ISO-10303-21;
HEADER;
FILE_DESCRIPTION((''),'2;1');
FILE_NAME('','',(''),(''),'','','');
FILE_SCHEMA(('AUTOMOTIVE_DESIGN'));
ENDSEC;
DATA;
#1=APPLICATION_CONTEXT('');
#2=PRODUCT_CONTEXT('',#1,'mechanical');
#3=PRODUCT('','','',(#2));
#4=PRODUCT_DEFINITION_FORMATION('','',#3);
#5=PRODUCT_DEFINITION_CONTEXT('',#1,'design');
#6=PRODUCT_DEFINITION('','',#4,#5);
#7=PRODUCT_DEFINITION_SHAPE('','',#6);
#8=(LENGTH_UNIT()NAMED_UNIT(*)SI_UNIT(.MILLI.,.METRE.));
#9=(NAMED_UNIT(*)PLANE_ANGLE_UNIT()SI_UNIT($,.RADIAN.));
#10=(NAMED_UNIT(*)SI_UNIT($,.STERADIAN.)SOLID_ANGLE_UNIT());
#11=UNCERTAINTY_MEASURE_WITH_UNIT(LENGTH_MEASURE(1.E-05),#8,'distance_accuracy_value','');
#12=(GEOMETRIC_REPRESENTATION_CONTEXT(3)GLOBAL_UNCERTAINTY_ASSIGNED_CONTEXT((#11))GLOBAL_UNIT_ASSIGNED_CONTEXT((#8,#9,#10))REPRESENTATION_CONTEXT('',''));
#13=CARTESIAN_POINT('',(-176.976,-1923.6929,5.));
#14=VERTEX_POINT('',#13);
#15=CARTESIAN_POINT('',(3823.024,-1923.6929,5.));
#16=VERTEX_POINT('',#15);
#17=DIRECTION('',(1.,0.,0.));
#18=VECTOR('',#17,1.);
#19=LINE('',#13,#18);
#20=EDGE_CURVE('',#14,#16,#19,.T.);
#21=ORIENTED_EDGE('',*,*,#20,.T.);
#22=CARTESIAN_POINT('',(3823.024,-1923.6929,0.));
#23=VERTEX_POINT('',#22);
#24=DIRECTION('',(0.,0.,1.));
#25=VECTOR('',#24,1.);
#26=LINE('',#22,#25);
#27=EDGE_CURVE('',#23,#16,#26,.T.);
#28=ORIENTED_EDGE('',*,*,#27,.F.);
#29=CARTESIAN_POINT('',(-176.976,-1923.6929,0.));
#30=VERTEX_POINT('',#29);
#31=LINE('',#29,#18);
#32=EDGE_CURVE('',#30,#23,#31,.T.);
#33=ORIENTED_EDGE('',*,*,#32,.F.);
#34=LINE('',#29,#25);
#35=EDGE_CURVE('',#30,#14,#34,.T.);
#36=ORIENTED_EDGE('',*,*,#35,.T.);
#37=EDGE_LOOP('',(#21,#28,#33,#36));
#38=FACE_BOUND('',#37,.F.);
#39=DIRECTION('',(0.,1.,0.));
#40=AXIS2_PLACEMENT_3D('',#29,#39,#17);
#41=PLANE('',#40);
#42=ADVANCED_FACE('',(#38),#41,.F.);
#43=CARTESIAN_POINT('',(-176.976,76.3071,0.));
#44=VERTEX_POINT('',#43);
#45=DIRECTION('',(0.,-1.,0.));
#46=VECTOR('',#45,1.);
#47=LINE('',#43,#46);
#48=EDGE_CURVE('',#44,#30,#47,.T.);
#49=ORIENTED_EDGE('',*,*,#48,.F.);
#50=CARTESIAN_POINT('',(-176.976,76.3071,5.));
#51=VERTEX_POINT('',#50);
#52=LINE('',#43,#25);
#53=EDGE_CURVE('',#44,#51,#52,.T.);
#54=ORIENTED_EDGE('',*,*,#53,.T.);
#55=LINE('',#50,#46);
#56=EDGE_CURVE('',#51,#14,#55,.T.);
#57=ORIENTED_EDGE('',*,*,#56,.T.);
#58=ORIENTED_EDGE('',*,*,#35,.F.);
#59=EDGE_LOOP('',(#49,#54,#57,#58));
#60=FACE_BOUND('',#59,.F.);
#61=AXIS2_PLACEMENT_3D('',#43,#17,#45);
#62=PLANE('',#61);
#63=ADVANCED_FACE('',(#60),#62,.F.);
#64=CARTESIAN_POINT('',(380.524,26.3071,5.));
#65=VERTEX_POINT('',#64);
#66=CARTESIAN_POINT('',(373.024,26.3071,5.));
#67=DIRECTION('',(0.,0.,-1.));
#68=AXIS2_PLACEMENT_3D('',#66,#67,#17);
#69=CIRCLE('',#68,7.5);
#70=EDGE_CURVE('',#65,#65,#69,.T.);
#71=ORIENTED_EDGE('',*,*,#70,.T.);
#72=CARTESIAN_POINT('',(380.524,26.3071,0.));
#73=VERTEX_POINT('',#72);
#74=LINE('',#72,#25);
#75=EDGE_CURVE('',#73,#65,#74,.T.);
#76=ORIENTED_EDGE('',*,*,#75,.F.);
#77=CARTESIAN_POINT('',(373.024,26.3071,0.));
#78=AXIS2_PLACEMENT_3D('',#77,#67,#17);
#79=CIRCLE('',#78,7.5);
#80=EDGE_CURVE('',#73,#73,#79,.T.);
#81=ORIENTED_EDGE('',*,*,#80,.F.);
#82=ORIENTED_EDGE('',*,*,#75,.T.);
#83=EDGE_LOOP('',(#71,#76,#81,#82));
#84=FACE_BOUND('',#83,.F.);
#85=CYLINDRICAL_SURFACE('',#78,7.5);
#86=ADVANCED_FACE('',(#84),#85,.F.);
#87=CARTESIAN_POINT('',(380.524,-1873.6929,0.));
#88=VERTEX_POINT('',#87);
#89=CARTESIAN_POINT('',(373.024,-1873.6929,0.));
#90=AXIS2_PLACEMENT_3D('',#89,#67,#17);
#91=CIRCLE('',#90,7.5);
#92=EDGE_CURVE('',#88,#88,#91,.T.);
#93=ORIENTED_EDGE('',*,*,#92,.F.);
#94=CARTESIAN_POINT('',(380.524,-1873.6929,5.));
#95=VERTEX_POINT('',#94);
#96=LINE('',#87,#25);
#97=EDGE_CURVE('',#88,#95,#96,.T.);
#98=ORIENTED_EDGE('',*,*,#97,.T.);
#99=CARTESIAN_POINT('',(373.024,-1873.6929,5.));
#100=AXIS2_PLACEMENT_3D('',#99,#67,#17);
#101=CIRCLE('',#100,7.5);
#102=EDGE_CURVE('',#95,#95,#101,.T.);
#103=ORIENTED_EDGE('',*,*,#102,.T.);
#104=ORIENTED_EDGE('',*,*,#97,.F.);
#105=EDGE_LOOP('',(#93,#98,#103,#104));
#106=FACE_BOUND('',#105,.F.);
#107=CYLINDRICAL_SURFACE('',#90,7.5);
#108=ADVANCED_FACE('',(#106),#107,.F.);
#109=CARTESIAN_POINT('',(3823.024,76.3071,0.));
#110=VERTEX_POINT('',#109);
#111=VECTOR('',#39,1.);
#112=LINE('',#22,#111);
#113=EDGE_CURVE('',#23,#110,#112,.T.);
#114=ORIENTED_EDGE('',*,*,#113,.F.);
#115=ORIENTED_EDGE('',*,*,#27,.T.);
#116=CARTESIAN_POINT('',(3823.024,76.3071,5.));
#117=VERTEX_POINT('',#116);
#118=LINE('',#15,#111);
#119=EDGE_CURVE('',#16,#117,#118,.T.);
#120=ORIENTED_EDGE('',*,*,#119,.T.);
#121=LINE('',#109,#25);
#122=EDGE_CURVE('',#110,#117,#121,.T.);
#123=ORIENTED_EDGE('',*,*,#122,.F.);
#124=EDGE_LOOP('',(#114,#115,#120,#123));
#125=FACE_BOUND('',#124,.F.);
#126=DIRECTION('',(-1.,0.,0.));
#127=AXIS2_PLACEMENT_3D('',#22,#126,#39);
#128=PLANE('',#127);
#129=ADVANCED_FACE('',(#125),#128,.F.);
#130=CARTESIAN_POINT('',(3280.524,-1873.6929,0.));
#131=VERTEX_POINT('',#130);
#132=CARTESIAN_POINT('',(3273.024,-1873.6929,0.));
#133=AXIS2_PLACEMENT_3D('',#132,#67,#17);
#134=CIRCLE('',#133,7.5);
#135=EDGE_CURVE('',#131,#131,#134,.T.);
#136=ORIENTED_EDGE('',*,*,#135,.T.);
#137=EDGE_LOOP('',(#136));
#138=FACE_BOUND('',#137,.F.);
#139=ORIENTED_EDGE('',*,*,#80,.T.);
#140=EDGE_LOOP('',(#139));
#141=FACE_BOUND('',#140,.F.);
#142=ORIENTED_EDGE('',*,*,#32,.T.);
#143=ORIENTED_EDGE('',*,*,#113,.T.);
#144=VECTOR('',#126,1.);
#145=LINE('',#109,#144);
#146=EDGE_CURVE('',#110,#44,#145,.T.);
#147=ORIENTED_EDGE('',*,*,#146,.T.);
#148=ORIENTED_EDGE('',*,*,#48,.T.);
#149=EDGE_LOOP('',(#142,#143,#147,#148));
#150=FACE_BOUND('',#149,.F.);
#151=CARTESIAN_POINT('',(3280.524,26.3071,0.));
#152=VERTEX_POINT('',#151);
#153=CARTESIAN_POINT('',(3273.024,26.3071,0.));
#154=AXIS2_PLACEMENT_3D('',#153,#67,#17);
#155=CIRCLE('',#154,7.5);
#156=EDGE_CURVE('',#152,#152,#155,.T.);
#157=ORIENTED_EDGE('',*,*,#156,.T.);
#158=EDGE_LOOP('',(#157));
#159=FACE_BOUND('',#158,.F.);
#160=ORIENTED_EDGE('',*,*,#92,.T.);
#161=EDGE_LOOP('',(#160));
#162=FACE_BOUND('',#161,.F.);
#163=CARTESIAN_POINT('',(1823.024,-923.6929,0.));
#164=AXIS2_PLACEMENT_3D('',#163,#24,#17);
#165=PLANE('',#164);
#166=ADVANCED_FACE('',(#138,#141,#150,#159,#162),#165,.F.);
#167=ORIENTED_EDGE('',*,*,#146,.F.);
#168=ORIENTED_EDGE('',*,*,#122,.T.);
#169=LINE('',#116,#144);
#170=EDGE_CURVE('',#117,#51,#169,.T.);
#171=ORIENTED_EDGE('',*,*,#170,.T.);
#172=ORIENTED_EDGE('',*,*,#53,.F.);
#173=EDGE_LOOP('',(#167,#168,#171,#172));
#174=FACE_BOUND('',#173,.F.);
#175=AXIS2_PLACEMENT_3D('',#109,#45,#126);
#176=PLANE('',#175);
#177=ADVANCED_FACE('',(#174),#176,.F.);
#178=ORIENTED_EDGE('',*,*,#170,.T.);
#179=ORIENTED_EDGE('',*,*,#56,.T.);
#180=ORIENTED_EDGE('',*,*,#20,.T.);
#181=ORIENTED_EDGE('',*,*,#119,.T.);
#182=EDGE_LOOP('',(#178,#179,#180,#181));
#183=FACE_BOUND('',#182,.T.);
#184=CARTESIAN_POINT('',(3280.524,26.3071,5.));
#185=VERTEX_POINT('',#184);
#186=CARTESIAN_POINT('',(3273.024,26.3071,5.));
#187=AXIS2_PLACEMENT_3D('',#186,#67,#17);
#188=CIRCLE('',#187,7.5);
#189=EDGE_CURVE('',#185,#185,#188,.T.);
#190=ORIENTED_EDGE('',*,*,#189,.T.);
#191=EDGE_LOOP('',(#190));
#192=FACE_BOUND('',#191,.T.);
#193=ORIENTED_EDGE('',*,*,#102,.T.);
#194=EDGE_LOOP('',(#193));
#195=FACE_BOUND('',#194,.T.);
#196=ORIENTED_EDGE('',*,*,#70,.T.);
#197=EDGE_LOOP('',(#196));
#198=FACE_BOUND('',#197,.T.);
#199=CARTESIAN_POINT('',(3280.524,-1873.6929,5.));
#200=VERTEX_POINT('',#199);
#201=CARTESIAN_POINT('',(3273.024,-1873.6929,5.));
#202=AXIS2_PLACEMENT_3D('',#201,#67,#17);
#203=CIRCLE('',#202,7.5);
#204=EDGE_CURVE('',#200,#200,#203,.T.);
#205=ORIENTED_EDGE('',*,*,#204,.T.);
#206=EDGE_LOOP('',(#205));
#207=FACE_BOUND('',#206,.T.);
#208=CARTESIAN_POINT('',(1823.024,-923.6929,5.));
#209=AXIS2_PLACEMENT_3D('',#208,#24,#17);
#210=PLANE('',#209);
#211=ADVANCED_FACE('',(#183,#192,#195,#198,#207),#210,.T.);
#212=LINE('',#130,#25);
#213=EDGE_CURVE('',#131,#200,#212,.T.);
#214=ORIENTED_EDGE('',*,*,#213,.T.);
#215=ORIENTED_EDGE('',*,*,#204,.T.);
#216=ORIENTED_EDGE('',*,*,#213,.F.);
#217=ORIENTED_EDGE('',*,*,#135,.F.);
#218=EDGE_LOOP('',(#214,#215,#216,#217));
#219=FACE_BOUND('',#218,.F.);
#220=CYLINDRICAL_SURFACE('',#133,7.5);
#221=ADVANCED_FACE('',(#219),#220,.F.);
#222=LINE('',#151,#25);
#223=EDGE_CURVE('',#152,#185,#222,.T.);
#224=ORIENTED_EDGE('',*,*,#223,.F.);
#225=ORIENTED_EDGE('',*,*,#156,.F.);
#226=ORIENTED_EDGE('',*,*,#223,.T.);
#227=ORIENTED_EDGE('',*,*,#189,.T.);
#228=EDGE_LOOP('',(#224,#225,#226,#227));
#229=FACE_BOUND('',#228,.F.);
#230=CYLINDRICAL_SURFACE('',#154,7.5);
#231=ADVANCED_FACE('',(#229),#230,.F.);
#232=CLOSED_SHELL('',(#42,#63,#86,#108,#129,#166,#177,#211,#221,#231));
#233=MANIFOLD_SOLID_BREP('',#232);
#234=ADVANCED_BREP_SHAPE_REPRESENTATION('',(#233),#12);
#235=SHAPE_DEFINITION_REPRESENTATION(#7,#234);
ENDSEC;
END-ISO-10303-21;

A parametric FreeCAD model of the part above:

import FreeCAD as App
import Part
import Sketcher
Q = App.Units.Quantity


def add_polygon(sketch, points):
    """Adds a closed chain of lines whose ends are joined by coincident constraints."""
    first, n = sketch.GeometryCount, len(points)
    for a, b in zip(points, points[1:] + points[:1]):
        sketch.addGeometry(Part.LineSegment(App.Vector(*a, 0), App.Vector(*b, 0)), False)
    for i in range(n):
        sketch.addConstraint(Sketcher.Constraint("Coincident", first + i, 2, first + (i + 1) % n, 1))

doc = App.newDocument("Part")
body = doc.addObject("PartDesign::Body", "Body")

sketch1 = body.newObject("Sketcher::SketchObject", "Sketch")
sketch1.AttachmentSupport = (doc.getObject("XY_Plane"), [""])
sketch1.MapMode = "FlatFace"
add_polygon(sketch1, [(-177, 76), (-177, -1924), (3823, -1924), (3823, 76)])
sketch1.addConstraint([
    Sketcher.Constraint("Vertical", 0),
    Sketcher.Constraint("Horizontal", 1),
    Sketcher.Constraint("Vertical", 2),
    Sketcher.Constraint("Horizontal", 3),
    Sketcher.Constraint("DistanceX", 1, 1, 1, 2, Q("4000 mm")),
    Sketcher.Constraint("DistanceY", 0, 2, 0, 1, Q("2000 mm")),
    Sketcher.Constraint("DistanceX", 0, 2, -1, 1, Q("176.976 mm")),
    Sketcher.Constraint("DistanceY", 0, 2, -1, 1, Q("1923.693 mm")),
])
pad1 = body.newObject("PartDesign::Pad", "Pad")
pad1.Profile = sketch1
pad1.Length = 5

sketch2 = body.newObject("Sketcher::SketchObject", "Sketch001")
sketch2.AttachmentSupport = (doc.getObject("XY_Plane"), [""])
sketch2.MapMode = "FlatFace"
sketch2.addGeometry([
    Part.Circle(App.Vector(3273, -1874, 0), App.Vector(0, 0, 1), 8),
    Part.Circle(App.Vector(3273, 26, 0), App.Vector(0, 0, 1), 8),
    Part.Circle(App.Vector(373, 26, 0), App.Vector(0, 0, 1), 8),
    Part.Circle(App.Vector(373, -1874, 0), App.Vector(0, 0, 1), 8),
], False)
sketch2.addConstraint([
    Sketcher.Constraint("Equal", 0, 1),
    Sketcher.Constraint("Equal", 1, 2),
    Sketcher.Constraint("Equal", 2, 3),
    Sketcher.Constraint("Horizontal", 1, 3, 2, 3),
    Sketcher.Constraint("Horizontal", 0, 3, 3, 3),
    Sketcher.Constraint("Vertical", 0, 3, 1, 3),
    Sketcher.Constraint("Vertical", 2, 3, 3, 3),
    Sketcher.Constraint("Diameter", 0, Q("15 mm")),
    Sketcher.Constraint("DistanceY", 0, 3, 1, 3, Q("1900 mm")),
    Sketcher.Constraint("DistanceX", 2, 3, 1, 3, Q("2900 mm")),
    Sketcher.Constraint("DistanceX", -1, 1, 0, 3, Q("3273.024 mm")),
    Sketcher.Constraint("DistanceY", 0, 3, -1, 1, Q("1873.693 mm")),
])
pocket1 = body.newObject("PartDesign::Pocket", "Pocket")
pocket1.Profile = sketch2
pocket1.Type = "ThroughAll"
pocket1.Reversed = True

doc.recompute()
